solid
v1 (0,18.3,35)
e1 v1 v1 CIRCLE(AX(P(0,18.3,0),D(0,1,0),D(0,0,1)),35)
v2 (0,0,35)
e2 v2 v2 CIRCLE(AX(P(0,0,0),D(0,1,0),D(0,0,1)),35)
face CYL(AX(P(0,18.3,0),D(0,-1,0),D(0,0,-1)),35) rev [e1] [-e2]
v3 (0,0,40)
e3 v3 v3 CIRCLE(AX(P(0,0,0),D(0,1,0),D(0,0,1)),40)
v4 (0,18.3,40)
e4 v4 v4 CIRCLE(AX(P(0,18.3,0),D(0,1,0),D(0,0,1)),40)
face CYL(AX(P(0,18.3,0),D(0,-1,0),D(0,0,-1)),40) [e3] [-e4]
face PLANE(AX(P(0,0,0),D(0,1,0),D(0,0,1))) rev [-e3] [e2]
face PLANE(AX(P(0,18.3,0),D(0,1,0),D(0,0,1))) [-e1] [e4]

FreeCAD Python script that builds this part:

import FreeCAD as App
import Part
import Sketcher
from FreeCAD import Vector

doc = App.newDocument("Part")
body = doc.addObject("PartDesign::Body", "Body")

sketch1 = doc.addObject("Sketcher::SketchObject", "Sketch")
body.addObject(sketch1)
sketch1.AttachmentSupport = (doc.XZ_Plane, [""])
sketch1.MapMode = "FlatFace"
sketch1.addGeometry([
    Part.Circle(Vector(0, 0, 0), Vector(0, 0, 1), 40),
    Part.Circle(Vector(0, 0, 0), Vector(0, 0, 1), 35),
], False)
sketch1.addConstraint([
    Sketcher.Constraint("Coincident", 0, 3, -1, 1),
    Sketcher.Constraint("Coincident", 1, 3, -1, 1),
    Sketcher.Constraint("Diameter", 0, 80.0),
    Sketcher.Constraint("Diameter", 1, 70.0),
])
pad1 = doc.addObject("PartDesign::Pad", "Pad")
body.addObject(pad1)
pad1.Profile = sketch1
pad1.Length = 18.3
pad1.Reversed = True

doc.recompute()
